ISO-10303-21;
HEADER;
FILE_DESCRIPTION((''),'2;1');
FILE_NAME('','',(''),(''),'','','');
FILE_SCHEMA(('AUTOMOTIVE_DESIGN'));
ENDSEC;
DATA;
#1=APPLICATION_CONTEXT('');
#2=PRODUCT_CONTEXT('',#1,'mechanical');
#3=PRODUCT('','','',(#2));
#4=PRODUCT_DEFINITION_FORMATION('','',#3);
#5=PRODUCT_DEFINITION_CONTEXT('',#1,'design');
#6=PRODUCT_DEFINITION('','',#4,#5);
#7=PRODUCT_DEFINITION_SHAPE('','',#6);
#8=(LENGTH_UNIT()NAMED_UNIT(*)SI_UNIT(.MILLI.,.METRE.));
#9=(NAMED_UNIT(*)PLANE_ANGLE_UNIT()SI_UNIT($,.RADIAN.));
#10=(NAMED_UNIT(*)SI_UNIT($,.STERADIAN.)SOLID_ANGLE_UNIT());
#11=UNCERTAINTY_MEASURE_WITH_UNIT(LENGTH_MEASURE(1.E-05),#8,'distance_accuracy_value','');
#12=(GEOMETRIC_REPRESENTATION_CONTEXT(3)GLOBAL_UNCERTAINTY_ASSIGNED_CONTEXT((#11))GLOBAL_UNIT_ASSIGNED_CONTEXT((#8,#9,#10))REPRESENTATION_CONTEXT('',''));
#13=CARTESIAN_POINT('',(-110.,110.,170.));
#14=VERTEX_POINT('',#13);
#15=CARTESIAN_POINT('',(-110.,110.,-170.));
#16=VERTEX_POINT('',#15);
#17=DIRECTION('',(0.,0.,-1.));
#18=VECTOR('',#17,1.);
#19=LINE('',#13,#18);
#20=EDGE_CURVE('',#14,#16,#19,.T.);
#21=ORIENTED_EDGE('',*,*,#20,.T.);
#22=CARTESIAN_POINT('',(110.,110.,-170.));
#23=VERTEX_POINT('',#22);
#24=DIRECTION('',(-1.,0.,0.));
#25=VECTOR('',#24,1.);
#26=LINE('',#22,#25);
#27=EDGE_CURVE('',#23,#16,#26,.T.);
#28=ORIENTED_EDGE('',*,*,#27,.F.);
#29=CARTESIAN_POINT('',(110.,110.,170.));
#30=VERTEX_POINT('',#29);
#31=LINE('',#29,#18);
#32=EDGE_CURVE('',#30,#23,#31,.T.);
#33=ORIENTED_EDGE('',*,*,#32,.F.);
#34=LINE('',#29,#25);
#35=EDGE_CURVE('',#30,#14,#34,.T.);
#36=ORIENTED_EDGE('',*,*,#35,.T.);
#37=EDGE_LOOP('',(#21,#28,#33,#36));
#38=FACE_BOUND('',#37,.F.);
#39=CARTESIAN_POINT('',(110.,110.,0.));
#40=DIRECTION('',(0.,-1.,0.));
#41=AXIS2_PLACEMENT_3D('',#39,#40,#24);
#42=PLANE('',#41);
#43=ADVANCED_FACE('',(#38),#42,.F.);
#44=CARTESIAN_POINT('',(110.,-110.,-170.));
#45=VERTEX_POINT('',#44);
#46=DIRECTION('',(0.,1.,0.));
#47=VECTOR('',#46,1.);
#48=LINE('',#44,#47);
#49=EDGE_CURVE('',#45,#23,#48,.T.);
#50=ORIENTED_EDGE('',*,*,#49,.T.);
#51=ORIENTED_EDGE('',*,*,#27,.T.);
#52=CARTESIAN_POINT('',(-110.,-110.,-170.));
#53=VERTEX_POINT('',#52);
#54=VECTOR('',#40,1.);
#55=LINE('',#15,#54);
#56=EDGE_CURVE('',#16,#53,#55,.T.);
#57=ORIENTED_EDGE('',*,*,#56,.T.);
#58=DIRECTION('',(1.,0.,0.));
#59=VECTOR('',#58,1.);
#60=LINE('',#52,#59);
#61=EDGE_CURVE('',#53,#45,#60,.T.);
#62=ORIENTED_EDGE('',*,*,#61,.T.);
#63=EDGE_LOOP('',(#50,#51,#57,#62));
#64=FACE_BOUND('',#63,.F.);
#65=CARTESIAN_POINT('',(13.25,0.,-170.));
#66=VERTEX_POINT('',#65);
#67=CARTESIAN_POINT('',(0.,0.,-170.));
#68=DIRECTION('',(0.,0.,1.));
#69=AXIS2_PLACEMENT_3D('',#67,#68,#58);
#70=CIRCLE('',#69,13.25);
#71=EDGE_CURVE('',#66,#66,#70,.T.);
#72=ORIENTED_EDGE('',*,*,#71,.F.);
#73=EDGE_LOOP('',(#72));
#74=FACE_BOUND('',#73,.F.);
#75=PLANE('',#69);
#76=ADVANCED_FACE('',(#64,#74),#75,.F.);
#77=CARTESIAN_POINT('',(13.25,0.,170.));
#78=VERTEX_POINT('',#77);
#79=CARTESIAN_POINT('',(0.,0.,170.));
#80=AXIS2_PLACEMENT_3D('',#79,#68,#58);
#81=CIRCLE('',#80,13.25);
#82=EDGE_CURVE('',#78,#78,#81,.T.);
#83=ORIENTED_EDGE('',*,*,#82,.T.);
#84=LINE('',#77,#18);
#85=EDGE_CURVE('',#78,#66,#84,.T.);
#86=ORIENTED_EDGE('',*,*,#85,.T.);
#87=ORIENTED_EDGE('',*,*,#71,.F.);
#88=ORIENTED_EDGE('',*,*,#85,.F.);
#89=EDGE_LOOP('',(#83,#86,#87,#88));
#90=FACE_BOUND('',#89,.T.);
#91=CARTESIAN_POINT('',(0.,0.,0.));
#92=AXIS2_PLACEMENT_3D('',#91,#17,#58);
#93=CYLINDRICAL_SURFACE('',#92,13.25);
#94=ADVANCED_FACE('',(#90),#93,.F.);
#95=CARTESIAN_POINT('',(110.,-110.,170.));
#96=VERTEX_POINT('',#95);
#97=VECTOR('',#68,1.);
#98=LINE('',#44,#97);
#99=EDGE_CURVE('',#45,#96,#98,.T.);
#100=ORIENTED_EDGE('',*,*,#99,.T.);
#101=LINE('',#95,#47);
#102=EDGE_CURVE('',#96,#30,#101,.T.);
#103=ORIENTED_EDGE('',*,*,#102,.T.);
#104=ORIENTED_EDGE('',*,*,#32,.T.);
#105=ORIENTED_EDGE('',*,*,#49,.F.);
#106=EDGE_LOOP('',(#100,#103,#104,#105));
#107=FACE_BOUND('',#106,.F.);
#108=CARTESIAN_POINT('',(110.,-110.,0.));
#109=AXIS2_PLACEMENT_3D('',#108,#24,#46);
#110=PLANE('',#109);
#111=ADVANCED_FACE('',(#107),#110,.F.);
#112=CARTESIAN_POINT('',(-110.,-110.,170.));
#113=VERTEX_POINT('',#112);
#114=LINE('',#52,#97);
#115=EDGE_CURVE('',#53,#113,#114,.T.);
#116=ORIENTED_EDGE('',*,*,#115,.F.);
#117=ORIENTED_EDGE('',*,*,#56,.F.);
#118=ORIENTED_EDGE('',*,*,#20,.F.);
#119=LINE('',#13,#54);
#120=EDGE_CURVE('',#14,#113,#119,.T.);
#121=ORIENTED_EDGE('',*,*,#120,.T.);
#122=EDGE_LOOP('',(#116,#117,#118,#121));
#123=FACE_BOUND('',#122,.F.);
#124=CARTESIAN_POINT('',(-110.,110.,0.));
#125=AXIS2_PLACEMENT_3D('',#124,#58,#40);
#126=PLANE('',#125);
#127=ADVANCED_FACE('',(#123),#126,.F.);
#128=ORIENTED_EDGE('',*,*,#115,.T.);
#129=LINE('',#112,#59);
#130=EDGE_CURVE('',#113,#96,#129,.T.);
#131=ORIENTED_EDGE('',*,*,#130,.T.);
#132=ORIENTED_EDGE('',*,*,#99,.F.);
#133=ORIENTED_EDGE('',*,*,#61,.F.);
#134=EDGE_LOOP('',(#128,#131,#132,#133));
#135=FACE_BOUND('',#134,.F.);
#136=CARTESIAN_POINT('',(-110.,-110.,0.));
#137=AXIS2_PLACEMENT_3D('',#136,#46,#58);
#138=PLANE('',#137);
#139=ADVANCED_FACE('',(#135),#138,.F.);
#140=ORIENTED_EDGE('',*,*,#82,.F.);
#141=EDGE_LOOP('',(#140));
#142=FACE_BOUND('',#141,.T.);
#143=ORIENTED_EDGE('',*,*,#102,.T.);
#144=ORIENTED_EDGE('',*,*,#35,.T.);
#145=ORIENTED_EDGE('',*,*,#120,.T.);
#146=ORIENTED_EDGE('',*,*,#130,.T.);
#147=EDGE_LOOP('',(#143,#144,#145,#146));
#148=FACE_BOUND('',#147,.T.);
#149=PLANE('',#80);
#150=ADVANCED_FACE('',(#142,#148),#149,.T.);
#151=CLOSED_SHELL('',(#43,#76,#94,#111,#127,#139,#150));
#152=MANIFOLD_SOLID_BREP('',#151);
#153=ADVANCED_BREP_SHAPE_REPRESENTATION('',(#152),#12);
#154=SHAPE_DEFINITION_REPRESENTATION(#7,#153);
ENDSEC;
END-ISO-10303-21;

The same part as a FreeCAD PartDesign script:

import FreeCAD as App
import Part
import Sketcher


def add_polygon(sketch, points):
    """Adds a closed chain of lines whose ends are joined by coincident constraints."""
    first, n = sketch.GeometryCount, len(points)
    for a, b in zip(points, points[1:] + points[:1]):
        sketch.addGeometry(Part.LineSegment(App.Vector(*a, 0), App.Vector(*b, 0)), False)
    for i in range(n):
        sketch.addConstraint(Sketcher.Constraint("Coincident", first + i, 2, first + (i + 1) % n, 1))

doc = App.newDocument("Part")
body = doc.addObject("PartDesign::Body", "Body")

sketch1 = body.newObject("Sketcher::SketchObject", "Sketch")
sketch1.AttachmentSupport = (doc.getObject("XY_Plane"), [""])
sketch1.MapMode = "FlatFace"
add_polygon(sketch1, [(-110, 110), (-110, -110), (110, -110), (110, 110)])
sketch1.addGeometry(Part.Circle(App.Vector(0, 0, 0), App.Vector(0, 0, 1), 13), False)
sketch1.addConstraint(Sketcher.Constraint("Vertical", 0))
sketch1.addConstraint(Sketcher.Constraint("Horizontal", 1))
sketch1.addConstraint(Sketcher.Constraint("Vertical", 2))
sketch1.addConstraint(Sketcher.Constraint("Horizontal", 3))
sketch1.addConstraint(Sketcher.Constraint("Coincident", 4, 3, -1, 1))
sketch1.addConstraint(Sketcher.Constraint("Symmetric", 0, 2, 2, 2, -1, 1))
sketch1.addConstraint(Sketcher.Constraint("Equal", 3, 0))
sketch1.addConstraint(Sketcher.Constraint("Diameter", 4, 26.5))
sketch1.addConstraint(Sketcher.Constraint("DistanceX", 1, 1, 1, 2, 220.0))
pad1 = body.newObject("PartDesign::Pad", "Pad")
pad1.Profile = sketch1
pad1.Length = 340
pad1.Midplane = True

doc.recompute()
